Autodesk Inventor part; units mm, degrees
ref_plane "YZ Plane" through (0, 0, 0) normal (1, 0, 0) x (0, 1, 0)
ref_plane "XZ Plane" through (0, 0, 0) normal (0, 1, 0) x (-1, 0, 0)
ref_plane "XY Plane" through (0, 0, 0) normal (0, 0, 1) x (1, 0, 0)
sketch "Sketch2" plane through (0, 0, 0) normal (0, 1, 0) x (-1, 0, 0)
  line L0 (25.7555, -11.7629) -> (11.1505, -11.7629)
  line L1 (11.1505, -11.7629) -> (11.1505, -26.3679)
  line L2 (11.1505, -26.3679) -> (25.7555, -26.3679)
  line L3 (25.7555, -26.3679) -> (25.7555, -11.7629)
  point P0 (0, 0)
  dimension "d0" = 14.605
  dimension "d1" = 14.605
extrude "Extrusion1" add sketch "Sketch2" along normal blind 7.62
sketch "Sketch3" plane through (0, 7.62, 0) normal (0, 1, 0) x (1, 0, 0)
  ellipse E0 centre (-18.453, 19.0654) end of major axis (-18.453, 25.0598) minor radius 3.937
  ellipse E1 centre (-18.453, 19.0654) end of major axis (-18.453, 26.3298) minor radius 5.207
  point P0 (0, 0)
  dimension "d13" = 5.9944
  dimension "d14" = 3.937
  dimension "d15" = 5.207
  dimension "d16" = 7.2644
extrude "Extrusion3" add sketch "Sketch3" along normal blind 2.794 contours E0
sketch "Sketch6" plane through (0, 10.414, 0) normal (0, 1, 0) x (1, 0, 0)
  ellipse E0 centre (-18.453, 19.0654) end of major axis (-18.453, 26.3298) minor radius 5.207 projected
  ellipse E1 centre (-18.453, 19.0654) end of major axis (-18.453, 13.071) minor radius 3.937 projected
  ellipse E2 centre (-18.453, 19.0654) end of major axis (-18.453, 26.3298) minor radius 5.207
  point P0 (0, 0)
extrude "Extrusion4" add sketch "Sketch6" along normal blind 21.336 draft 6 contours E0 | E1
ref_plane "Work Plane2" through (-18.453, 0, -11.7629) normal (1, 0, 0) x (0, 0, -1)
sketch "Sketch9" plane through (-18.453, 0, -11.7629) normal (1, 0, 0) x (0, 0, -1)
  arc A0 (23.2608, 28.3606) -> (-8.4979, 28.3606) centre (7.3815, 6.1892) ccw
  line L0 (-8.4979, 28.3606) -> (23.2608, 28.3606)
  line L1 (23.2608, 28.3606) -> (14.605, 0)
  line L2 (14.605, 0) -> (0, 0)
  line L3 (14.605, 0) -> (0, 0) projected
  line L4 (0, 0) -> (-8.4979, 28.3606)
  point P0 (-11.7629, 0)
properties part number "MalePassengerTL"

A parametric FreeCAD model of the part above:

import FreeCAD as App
import Part
import Sketcher
Q = App.Units.Quantity


def add_polygon(sketch, points):
    """Adds a closed chain of lines whose ends are joined by coincident constraints."""
    first, n = sketch.GeometryCount, len(points)
    for a, b in zip(points, points[1:] + points[:1]):
        sketch.addGeometry(Part.LineSegment(App.Vector(*a, 0), App.Vector(*b, 0)), False)
    for i in range(n):
        sketch.addConstraint(Sketcher.Constraint("Coincident", first + i, 2, first + (i + 1) % n, 1))

doc = App.newDocument("Part")
params = doc.addObject("Spreadsheet::Sheet", "Params")
for row, (alias, value) in enumerate([
    ("sketch1_width", "0.575 in"),
    ("pad1_length", "0.3 in"),
    ("pad2_length", "0.11 in"),
    ("pad3_length", "0.84 in"),
    ("pad3_taper", "6 deg"),
], start=1):
    params.set(f"A{row}", alias)
    params.set(f"B{row}", "=" + value)
    params.setAlias(f"B{row}", alias)

body = doc.addObject("PartDesign::Body", "Body")

sketch1 = body.newObject("Sketcher::SketchObject", "Sketch")
sketch1.AttachmentSupport = (doc.getObject("XZ_Plane"), [""])
sketch1.MapMode = "FlatFace"
add_polygon(sketch1, [(-26, -26), (-26, -12), (-11, -12), (-11, -26)])
sketch1.addConstraint([
    Sketcher.Constraint("Vertical", 0),
    Sketcher.Constraint("Horizontal", 1),
    Sketcher.Constraint("Vertical", 2),
    Sketcher.Constraint("Horizontal", 3),
    Sketcher.Constraint("Equal", 3, 0),
    Sketcher.Constraint("DistanceX", 1, 1, 1, 2, Q("0.575 in")),
    Sketcher.Constraint("DistanceX", 0, 2, -1, 1, Q("1.014 in")),
    Sketcher.Constraint("DistanceY", 0, 2, -1, 1, Q("0.4631 in")),
])
sketch1.setExpression("Constraints[9]", "Params.sketch1_width")
pad1 = body.newObject("PartDesign::Pad", "Pad")
pad1.Profile = sketch1
pad1.setExpression("Length", "Params.pad1_length")
pad1.Reversed = True

sketch2 = body.newObject("Sketcher::SketchObject", "Sketch001")
sketch2.AttachmentSupport = (doc.getObject("XZ_Plane"), [""])
sketch2.MapMode = "FlatFace"
sketch2.AttachmentOffset = App.Placement(App.Vector(0, 0, -0.3 * 25.4), App.Rotation())
sketch2.addGeometry(Part.Ellipse(App.Vector(-18.453, -25.0598, 0), App.Vector(-14.516, -19.0654, 0), App.Vector(-18.453, -19.0654, 0)), False)
sketch2.addConstraint(Sketcher.Constraint("Block", 0))
pad2 = body.newObject("PartDesign::Pad", "Pad001")
pad2.Profile = sketch2
pad2.setExpression("Length", "Params.pad2_length")
pad2.Reversed = True

sketch3 = body.newObject("Sketcher::SketchObject", "Sketch002")
sketch3.AttachmentSupport = (doc.getObject("XZ_Plane"), [""])
sketch3.MapMode = "FlatFace"
sketch3.AttachmentOffset = App.Placement(App.Vector(0, 0, -0.41 * 25.4), App.Rotation())
sketch3.addGeometry(Part.Ellipse(App.Vector(-18.453, -26.3298, 0), App.Vector(-13.246, -19.0654, 0), App.Vector(-18.453, -19.0654, 0)), False)
sketch3.addConstraint(Sketcher.Constraint("Block", 0))
pad3 = body.newObject("PartDesign::Pad", "Pad002")
pad3.Profile = sketch3
pad3.setExpression("Length", "Params.pad3_length")
pad3.Reversed = True
pad3.setExpression("TaperAngle", "Params.pad3_taper")

doc.recompute()
